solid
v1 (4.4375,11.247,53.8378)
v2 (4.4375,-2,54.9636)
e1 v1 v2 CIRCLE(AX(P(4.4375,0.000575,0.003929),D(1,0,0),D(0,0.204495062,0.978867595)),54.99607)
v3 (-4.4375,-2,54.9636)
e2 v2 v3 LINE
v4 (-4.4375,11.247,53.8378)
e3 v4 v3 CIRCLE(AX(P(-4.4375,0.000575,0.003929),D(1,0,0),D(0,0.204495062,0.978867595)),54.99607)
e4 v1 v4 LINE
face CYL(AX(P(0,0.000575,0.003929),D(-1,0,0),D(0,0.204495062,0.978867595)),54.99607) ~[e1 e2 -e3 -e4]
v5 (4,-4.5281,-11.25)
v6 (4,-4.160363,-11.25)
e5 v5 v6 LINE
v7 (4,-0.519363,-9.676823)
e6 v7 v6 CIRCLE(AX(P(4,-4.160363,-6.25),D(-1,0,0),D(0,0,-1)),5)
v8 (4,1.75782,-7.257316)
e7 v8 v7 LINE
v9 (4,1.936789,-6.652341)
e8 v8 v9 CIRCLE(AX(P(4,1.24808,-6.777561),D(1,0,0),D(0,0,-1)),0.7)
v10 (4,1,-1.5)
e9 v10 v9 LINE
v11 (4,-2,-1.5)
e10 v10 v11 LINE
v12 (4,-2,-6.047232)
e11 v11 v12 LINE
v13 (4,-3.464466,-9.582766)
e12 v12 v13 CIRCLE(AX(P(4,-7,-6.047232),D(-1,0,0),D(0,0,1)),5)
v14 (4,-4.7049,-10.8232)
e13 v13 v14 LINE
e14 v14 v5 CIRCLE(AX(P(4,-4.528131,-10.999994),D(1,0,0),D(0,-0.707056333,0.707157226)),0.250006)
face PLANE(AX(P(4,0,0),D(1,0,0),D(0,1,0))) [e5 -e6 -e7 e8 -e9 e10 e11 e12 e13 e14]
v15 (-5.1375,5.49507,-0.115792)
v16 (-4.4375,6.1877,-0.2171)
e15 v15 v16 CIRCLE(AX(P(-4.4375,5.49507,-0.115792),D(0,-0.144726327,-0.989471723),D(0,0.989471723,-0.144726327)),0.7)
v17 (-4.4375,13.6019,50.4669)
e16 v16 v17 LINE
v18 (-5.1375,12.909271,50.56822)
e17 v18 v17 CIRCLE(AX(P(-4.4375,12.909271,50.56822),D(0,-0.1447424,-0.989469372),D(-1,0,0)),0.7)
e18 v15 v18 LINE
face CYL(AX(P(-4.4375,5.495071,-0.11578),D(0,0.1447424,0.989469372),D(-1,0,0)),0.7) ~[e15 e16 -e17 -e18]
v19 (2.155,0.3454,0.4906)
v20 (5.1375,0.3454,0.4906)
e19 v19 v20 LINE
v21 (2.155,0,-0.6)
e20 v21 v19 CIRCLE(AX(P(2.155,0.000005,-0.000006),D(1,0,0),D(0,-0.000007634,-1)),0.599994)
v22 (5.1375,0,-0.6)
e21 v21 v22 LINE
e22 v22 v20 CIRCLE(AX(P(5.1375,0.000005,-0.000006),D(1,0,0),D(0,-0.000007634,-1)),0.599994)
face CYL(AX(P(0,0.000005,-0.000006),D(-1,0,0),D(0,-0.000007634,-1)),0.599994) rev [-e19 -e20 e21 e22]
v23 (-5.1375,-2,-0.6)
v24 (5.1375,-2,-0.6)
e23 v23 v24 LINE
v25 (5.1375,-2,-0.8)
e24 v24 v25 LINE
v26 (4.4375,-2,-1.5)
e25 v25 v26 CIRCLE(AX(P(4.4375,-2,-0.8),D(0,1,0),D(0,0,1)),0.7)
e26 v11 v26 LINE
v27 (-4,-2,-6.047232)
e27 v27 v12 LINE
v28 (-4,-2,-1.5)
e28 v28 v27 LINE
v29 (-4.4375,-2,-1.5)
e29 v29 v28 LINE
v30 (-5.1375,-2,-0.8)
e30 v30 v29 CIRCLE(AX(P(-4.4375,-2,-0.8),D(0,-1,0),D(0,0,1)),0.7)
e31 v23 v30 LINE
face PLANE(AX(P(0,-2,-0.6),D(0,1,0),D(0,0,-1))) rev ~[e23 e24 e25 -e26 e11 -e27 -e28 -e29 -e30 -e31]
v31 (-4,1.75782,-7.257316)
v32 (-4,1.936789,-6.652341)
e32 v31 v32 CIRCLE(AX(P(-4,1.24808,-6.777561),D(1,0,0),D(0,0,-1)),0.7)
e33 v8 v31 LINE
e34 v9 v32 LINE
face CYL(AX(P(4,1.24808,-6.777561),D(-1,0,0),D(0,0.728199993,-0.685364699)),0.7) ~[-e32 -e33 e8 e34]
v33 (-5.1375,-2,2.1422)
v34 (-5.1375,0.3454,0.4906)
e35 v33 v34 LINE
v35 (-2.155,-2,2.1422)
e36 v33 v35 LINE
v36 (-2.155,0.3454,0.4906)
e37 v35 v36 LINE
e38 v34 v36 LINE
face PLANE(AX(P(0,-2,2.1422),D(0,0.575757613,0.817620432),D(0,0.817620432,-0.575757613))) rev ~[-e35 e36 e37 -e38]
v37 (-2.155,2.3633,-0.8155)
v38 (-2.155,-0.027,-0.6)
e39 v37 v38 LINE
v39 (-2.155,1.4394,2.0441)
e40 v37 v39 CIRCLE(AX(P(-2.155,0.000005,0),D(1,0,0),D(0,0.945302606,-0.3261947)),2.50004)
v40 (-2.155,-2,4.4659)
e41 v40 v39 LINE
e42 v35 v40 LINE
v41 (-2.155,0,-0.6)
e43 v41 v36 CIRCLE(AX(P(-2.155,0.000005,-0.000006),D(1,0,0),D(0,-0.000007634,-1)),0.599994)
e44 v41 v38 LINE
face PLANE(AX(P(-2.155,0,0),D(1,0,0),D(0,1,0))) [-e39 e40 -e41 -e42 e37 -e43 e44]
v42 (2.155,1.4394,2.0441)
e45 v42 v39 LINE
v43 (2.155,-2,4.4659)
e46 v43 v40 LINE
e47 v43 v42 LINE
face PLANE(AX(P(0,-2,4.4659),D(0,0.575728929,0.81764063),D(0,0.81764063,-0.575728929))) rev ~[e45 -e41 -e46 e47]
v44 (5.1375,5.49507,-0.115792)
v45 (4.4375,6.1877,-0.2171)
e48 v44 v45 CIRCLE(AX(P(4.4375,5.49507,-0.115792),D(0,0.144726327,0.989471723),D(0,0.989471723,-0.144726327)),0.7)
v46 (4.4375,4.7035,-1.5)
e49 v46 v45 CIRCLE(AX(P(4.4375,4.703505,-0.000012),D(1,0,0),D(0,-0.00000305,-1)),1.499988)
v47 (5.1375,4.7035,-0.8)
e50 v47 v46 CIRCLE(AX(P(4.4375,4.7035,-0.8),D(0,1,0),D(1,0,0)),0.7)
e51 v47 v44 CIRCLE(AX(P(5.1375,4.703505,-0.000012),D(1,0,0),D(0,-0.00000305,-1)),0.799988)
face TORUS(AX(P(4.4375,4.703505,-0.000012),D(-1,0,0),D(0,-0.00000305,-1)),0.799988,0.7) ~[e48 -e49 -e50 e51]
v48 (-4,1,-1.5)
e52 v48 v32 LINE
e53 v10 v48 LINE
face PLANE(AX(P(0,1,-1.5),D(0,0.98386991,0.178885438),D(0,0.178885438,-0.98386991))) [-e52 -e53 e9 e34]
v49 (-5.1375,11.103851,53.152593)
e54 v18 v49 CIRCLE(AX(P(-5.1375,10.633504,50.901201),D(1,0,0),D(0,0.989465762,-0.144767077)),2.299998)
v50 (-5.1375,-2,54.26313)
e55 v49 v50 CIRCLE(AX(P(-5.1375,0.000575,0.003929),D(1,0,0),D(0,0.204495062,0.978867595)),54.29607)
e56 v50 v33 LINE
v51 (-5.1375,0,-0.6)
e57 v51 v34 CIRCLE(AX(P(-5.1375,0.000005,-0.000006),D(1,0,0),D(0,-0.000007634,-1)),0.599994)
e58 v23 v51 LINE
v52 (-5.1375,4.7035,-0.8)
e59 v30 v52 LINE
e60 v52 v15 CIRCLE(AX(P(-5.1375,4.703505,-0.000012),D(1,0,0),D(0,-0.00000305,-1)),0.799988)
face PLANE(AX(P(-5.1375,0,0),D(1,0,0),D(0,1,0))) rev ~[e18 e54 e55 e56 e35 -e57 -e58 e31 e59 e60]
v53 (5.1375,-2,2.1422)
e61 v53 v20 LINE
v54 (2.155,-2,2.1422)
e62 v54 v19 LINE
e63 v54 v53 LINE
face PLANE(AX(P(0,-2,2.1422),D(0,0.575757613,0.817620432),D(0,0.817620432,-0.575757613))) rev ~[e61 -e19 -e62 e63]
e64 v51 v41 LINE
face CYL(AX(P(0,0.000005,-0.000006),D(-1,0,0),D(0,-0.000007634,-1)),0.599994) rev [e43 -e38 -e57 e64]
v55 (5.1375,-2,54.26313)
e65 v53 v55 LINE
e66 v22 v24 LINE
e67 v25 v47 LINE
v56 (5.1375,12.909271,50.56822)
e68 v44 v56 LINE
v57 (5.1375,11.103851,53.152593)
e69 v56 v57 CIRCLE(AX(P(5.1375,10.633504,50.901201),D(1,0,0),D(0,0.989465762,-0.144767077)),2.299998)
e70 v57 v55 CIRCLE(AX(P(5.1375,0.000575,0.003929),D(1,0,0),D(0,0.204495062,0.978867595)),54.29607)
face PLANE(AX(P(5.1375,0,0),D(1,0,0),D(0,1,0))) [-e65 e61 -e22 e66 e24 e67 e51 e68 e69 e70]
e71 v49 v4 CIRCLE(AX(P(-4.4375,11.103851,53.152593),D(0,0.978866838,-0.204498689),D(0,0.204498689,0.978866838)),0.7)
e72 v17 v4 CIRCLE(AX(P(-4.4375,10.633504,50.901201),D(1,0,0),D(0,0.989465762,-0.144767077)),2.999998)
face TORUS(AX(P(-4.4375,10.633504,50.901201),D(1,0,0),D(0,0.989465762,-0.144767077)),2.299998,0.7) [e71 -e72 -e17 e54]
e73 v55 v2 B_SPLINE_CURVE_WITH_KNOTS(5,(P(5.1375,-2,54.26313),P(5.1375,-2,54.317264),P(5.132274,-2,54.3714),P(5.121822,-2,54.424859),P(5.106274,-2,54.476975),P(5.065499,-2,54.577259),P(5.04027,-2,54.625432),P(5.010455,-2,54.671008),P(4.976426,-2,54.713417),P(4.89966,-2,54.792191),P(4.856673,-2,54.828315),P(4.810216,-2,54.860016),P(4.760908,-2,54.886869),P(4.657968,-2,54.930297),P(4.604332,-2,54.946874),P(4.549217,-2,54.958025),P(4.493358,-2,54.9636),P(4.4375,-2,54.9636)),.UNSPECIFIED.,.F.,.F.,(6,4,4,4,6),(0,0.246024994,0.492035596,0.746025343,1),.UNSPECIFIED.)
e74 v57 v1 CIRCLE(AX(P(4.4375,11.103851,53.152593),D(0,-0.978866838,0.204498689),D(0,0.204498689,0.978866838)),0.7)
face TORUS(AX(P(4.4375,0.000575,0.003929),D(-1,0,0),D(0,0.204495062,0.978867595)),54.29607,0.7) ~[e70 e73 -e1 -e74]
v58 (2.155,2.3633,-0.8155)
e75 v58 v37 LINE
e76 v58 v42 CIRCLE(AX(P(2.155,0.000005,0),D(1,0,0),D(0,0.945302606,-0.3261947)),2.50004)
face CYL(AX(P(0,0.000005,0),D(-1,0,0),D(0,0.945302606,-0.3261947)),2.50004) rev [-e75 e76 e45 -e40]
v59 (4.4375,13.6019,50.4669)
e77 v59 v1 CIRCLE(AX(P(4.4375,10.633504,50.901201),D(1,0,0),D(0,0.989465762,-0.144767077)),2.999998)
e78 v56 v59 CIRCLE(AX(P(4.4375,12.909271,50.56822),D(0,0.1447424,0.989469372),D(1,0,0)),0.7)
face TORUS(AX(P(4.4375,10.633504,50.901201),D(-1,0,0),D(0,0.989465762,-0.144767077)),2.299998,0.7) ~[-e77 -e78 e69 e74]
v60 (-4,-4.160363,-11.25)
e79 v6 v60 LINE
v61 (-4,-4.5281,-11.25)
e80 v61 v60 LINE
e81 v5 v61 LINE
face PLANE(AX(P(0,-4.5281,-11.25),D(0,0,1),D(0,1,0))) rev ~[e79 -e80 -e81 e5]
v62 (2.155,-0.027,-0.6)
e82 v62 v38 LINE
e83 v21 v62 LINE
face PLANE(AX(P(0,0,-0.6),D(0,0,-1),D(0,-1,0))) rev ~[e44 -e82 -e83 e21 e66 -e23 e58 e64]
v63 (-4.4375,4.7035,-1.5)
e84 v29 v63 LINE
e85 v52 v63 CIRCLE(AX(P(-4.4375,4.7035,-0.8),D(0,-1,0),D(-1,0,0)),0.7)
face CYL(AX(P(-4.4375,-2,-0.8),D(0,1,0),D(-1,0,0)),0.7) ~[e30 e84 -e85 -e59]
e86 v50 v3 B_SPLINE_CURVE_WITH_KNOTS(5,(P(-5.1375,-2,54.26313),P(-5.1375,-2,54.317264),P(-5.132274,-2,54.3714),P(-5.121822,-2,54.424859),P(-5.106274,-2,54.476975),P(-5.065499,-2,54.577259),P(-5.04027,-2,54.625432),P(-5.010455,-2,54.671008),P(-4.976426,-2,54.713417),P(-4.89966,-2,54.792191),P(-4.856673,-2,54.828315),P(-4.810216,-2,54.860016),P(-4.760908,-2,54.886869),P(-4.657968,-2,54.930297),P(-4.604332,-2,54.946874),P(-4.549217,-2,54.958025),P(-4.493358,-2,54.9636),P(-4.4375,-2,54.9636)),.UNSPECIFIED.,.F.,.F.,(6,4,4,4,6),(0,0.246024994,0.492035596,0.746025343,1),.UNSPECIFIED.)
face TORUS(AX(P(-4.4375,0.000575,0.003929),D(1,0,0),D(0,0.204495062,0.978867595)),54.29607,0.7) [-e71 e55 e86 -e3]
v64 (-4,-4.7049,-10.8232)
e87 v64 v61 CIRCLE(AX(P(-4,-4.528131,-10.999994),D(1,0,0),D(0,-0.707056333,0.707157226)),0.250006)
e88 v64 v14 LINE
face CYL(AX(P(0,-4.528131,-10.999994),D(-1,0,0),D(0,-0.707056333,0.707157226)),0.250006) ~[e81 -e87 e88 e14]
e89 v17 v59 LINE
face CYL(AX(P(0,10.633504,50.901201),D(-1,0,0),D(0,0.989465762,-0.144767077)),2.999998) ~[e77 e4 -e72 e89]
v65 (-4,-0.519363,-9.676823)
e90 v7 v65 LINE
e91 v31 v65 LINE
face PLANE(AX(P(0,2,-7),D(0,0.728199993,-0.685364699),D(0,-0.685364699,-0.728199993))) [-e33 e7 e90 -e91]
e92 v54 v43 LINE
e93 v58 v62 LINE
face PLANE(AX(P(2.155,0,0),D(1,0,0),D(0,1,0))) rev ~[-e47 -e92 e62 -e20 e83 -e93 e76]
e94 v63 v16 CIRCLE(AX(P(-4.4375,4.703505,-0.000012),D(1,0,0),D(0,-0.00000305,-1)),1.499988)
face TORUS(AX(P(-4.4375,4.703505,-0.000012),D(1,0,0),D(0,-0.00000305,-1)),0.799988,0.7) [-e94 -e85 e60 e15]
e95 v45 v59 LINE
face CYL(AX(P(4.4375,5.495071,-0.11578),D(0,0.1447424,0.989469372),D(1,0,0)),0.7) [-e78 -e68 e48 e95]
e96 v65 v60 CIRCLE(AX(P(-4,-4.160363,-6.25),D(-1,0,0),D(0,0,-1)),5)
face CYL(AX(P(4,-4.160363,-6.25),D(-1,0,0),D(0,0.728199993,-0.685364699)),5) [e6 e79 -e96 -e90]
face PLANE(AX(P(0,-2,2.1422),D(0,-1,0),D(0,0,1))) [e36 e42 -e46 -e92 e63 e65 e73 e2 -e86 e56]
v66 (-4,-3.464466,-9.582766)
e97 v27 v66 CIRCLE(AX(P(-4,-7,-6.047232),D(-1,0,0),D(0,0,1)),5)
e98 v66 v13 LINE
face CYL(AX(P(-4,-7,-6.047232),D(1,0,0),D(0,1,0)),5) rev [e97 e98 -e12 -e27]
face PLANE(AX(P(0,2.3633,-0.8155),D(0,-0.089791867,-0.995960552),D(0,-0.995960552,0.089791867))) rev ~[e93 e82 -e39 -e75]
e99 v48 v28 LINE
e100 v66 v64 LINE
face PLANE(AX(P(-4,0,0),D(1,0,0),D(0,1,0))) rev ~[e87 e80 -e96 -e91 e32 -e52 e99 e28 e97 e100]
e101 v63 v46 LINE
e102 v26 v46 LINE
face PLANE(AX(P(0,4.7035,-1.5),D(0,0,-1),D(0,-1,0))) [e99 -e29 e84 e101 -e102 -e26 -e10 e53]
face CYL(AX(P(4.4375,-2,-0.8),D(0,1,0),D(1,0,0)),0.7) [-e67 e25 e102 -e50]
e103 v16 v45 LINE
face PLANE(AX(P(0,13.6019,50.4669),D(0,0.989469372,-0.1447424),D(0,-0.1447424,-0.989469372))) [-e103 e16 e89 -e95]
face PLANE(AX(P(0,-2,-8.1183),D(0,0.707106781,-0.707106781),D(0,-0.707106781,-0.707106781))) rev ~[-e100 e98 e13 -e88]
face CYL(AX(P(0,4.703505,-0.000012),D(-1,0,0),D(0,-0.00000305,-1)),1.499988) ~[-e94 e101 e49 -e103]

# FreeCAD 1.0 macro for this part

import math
import FreeCAD as App
import Part
import Sketcher
Q = App.Units.Quantity


def edges_at(feature, points):
    """Names of the edges that pass closest to the given points."""
    edges = feature.Shape.Edges
    near = lambda p: min(range(len(edges)), key=lambda i: edges[i].distToShape(Part.Vertex(*p))[0])
    return sorted({f"Edge{near(p) + 1}" for p in points})

doc = App.newDocument("Part")
params = doc.addObject("Spreadsheet::Sheet", "Params")
for row, (alias, value) in enumerate([
    ("sketch1_radius", "3 mm"),
    ("sketch1_radius2", "0.6 mm"),
    ("sketch1_radius3", "1.5 mm"),
    ("sketch1_width", "2 mm"),
    ("pad1_length", "10.275 mm"),
    ("sketch2_width", "3 mm"),
    ("sketch2_radius", "0.25 mm"),
    ("pad2_length", "8 mm"),
    ("fillet_radius", "0.7 mm"),
    ("sketch3_radius", "0.6 mm"),
    ("sketch3_radius2", "2.5 mm"),
    ("sketch3_length", "2.4 mm"),
    ("pocket1_length", "4.31 mm"),
    ("fillet2_radius", "5 mm"),
    ("fillet3_radius", "0.7 mm"),
], start=1):
    params.set(f"A{row}", alias)
    params.set(f"B{row}", "=" + value)
    params.setAlias(f"B{row}", alias)

body = doc.addObject("PartDesign::Body", "Body")

# Sketch on YZ plane
sketch1 = body.newObject("Sketcher::SketchObject", "Sketch")
sketch1.AttachmentSupport = (doc.getObject("YZ_Plane"), [""])
sketch1.MapMode = "FlatFace"
sketch1.addGeometry([
    Part.LineSegment(App.Vector(-2, 2.1, 0), App.Vector(0.3, 0.5, 0)),  # 0
    Part.ArcOfCircle(Part.Circle(App.Vector(0, 0, 0), App.Vector(0, 0, 1), 0.6), math.radians(-90), math.radians(55)),  # 1
    Part.LineSegment(App.Vector(0, -0.6, 0), App.Vector(-2, -0.6, 0)),  # 2
    Part.LineSegment(App.Vector(-2, -0.6, 0), App.Vector(-2, -1.5, 0)),  # 3
    Part.LineSegment(App.Vector(-2, -1.5, 0), App.Vector(4.7, -1.5, 0)),  # 4
    Part.ArcOfCircle(Part.Circle(App.Vector(4.7, 0, 0), App.Vector(0, 0, 1), 1.5), math.radians(-90), math.radians(-8)),  # 5
    Part.LineSegment(App.Vector(6.2, -0.2, 0), App.Vector(13.6, 50.5, 0)),  # 6
    Part.ArcOfCircle(Part.Circle(App.Vector(10.6, 50.9, 0), App.Vector(0, 0, 1), 3), math.radians(-8), math.radians(78)),  # 7
    Part.ArcOfCircle(Part.Circle(App.Vector(0, 0, 0), App.Vector(0, 0, 1), 55), math.radians(78.2), math.radians(92.08)),  # 8
    Part.LineSegment(App.Vector(-2, 55, 0), App.Vector(-2, 2.1, 0)),  # 9
], False)
sketch1.addConstraint([
    Sketcher.Constraint("Tangent", 0, 2, 1, 2),
    Sketcher.Constraint("Tangent", 1, 1, 2, 1),
    Sketcher.Constraint("Coincident", 2, 2, 3, 1),
    Sketcher.Constraint("Coincident", 3, 2, 4, 1),
    Sketcher.Constraint("Tangent", 4, 2, 5, 1),
    Sketcher.Constraint("Tangent", 5, 2, 6, 1),
    Sketcher.Constraint("Tangent", 6, 2, 7, 1),
    Sketcher.Constraint("Tangent", 7, 2, 8, 1),
    Sketcher.Constraint("Coincident", 8, 2, 9, 1),
    Sketcher.Constraint("Coincident", 9, 2, 0, 1),
    Sketcher.Constraint("Horizontal", 2),
    Sketcher.Constraint("Vertical", 3),
    Sketcher.Constraint("Horizontal", 4),
    Sketcher.Constraint("Vertical", 9),
    Sketcher.Constraint("Coincident", 1, 3, -1, 1),
    Sketcher.Constraint("PointOnObject", 5, 3, -1),
    Sketcher.Constraint("Vertical", 3, 2, 8, 2),
    Sketcher.Constraint("Radius", 7, 3.0),
    Sketcher.Constraint("Radius", 1, 0.6),
    Sketcher.Constraint("Radius", 5, 1.5),
    Sketcher.Constraint("DistanceX", 2, 2, 2, 1, 2.0),
    Sketcher.Constraint("Radius", 8, 54.996),
    Sketcher.Constraint("DistanceX", 2, 2, 8, 3, 2.0006),
    Sketcher.Constraint("DistanceX", 5, 3, 7, 3, 5.93),
    Sketcher.Constraint("DistanceX", 4, 1, 4, 2, 6.7035),
    Sketcher.Constraint("DistanceY", 9, 2, 9, 1, 52.8214),
    Sketcher.Constraint("DistanceY", -1, 1, 8, 3, 0.004),
])
sketch1.setExpression("Constraints[17]", "Params.sketch1_radius")
sketch1.setExpression("Constraints[18]", "Params.sketch1_radius2")
sketch1.setExpression("Constraints[19]", "Params.sketch1_radius3")
sketch1.setExpression("Constraints[20]", "Params.sketch1_width")
pad1 = body.newObject("PartDesign::Pad", "Pad")
pad1.Profile = sketch1
pad1.setExpression("Length", "Params.pad1_length")
pad1.Midplane = True

# Sketch on YZ plane
sketch2 = body.newObject("Sketcher::SketchObject", "Sketch001")
sketch2.AttachmentSupport = (doc.getObject("YZ_Plane"), [""])
sketch2.MapMode = "FlatFace"
sketch2.addGeometry([
    Part.LineSegment(App.Vector(1, -1.5, 0), App.Vector(-2, -1.5, 0)),  # 0
    Part.LineSegment(App.Vector(-2, -1.5, 0), App.Vector(-2, -8.12, 0)),  # 1
    Part.LineSegment(App.Vector(-2, -8.12, 0), App.Vector(-4.7, -10.82, 0)),  # 2
    Part.ArcOfCircle(Part.Circle(App.Vector(-4.53, -11, 0), App.Vector(0, 0, 1), 0.25), math.radians(135), math.radians(270)),  # 3
    Part.LineSegment(App.Vector(-4.53, -11.25, 0), App.Vector(-2, -11.25, 0)),  # 4
    Part.LineSegment(App.Vector(-2, -11.25, 0), App.Vector(2, -7, 0)),  # 5
    Part.LineSegment(App.Vector(2, -7, 0), App.Vector(1, -1.5, 0)),  # 6
], False)
sketch2.addConstraint([
    Sketcher.Constraint("Coincident", 0, 2, 1, 1),
    Sketcher.Constraint("Coincident", 1, 2, 2, 1),
    Sketcher.Constraint("Tangent", 2, 2, 3, 1),
    Sketcher.Constraint("Tangent", 3, 2, 4, 1),
    Sketcher.Constraint("Coincident", 4, 2, 5, 1),
    Sketcher.Constraint("Coincident", 5, 2, 6, 1),
    Sketcher.Constraint("Coincident", 6, 2, 0, 1),
    Sketcher.Constraint("Horizontal", 0),
    Sketcher.Constraint("Vertical", 1),
    Sketcher.Constraint("Horizontal", 4),
    Sketcher.Constraint("Vertical", 1, 2, 4, 2),
    Sketcher.Constraint("DistanceX", 0, 2, 0, 1, 3.0),
    Sketcher.Constraint("Radius", 3, 0.25),
    Sketcher.Constraint("DistanceY", 3, 3, -1, 1, 11.0),
    Sketcher.Constraint("DistanceX", 0, 2, -1, 1, 2.0),
    Sketcher.Constraint("DistanceX", -1, 1, 5, 2, 2.0),
    Sketcher.Constraint("DistanceY", 5, 2, -1, 1, 7.0),
    Sketcher.Constraint("DistanceY", 0, 2, -1, 1, 1.5),
    Sketcher.Constraint("Angle", 2, Q("-135 deg")),
    Sketcher.Constraint("DistanceX", 4, 1, 4, 2, 2.528),
])
sketch2.setExpression("Constraints[11]", "Params.sketch2_width")
sketch2.setExpression("Constraints[12]", "Params.sketch2_radius")
pad2 = body.newObject("PartDesign::Pad", "Pad001")
pad2.Profile = sketch2
pad2.setExpression("Length", "Params.pad2_length")
pad2.Midplane = True
doc.recompute()

fillet = body.newObject("PartDesign::Fillet", "Fillet")
fillet.Base = (pad2, edges_at(pad2, [
    (-5.138, 5.684, -1.135),
    (-5.138, 1.352, -1.5),
    (-5.138, 13.093, 52.619),
    (-5.138, 4.658, 54.802),
    (-5.138, 9.895, 25.125),
    (5.138, 13.093, 52.619),
    (5.138, 4.658, 54.802),
    (5.138, 5.684, -1.135),
    (5.138, 1.352, -1.5),
    (5.138, 9.895, 25.125),
]))
fillet.setExpression("Radius", "Params.fillet_radius")

# Sketch on YZ plane
sketch3 = body.newObject("Sketcher::SketchObject", "Sketch002")
sketch3.AttachmentSupport = (doc.getObject("YZ_Plane"), [""])
sketch3.MapMode = "FlatFace"
sketch3.addGeometry([
    Part.LineSegment(App.Vector(-2, 4.466, 0), App.Vector(-2, 2.142, 0)),  # 0
    Part.LineSegment(App.Vector(-2, 2.142, 0), App.Vector(0.345, 0.491, 0)),  # 1
    Part.ArcOfCircle(Part.Circle(App.Vector(0, 0, 0), App.Vector(0, 0, 1), 0.6), math.radians(-90), math.radians(55)),  # 2
    Part.LineSegment(App.Vector(0, -0.6, 0), App.Vector(-0.027, -0.6, 0)),  # 3
    Part.LineSegment(App.Vector(-0.027, -0.6, 0), App.Vector(2.363, -0.816, 0)),  # 4
    Part.ArcOfCircle(Part.Circle(App.Vector(0, 0, 0), App.Vector(0, 0, 1), 2.5), math.radians(-19), math.radians(55)),  # 5
    Part.LineSegment(App.Vector(1.439, 2.044, 0), App.Vector(-2, 4.466, 0)),  # 6
], False)
sketch3.addConstraint([
    Sketcher.Constraint("Coincident", 0, 2, 1, 1),
    Sketcher.Constraint("Tangent", 1, 2, 2, 2),
    Sketcher.Constraint("Tangent", 2, 1, 3, 1),
    Sketcher.Constraint("Coincident", 3, 2, 4, 1),
    Sketcher.Constraint("Coincident", 4, 2, 5, 1),
    Sketcher.Constraint("Tangent", 5, 2, 6, 1),
    Sketcher.Constraint("Coincident", 6, 2, 0, 1),
    Sketcher.Constraint("Vertical", 0),
    Sketcher.Constraint("Horizontal", 3),
    Sketcher.Constraint("Coincident", 2, 3, -1, 1),
    Sketcher.Constraint("Coincident", 5, 3, -1, 1),
    Sketcher.Constraint("Parallel", 1, 6),
    Sketcher.Constraint("Radius", 2, 0.6),
    Sketcher.Constraint("Radius", 5, 2.5),
    Sketcher.Constraint("DistanceX", 0, 2, -1, 1, 2.0),
    Sketcher.Constraint("Distance", 4, 2.4),
    Sketcher.Constraint("Angle", 6, Q("144.8493 deg")),
    Sketcher.Constraint("DistanceX", 3, 2, 3, 1, 0.027),
])
sketch3.setExpression("Constraints[12]", "Params.sketch3_radius")
sketch3.setExpression("Constraints[13]", "Params.sketch3_radius2")
sketch3.setExpression("Constraints[15]", "Params.sketch3_length")
pocket1 = body.newObject("PartDesign::Pocket", "Pocket")
pocket1.Profile = sketch3
pocket1.setExpression("Length", "Params.pocket1_length")
pocket1.Midplane = True
doc.recompute()

fillet2 = body.newObject("PartDesign::Fillet", "Fillet001")
fillet2.Base = (pocket1, edges_at(pocket1, [(0, -2, -8.118), (0, -2, -11.25)]))
fillet2.setExpression("Radius", "Params.fillet2_radius")
doc.recompute()

fillet3 = body.newObject("PartDesign::Fillet", "Fillet002")
fillet3.Base = (fillet2, edges_at(fillet2, [(0, 2, -7)]))
fillet3.setExpression("Radius", "Params.fillet3_radius")

doc.recompute()
